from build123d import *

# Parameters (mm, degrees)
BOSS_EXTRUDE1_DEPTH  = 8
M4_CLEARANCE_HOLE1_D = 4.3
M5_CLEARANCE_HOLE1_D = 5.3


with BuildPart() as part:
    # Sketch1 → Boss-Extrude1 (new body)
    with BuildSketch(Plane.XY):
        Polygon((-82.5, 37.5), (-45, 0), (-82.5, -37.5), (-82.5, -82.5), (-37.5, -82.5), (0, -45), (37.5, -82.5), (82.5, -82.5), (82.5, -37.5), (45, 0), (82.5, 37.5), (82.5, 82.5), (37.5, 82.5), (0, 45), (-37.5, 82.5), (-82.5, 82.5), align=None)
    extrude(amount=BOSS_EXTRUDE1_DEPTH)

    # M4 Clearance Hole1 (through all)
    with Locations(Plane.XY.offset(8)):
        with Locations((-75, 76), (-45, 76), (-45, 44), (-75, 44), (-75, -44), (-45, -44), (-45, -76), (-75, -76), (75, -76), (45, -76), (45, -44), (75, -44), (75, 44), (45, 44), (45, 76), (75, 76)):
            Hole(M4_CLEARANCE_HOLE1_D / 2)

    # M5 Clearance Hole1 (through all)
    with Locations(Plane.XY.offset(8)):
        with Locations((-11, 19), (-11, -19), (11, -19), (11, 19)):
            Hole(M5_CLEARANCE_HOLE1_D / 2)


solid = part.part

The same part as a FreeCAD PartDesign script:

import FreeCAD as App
import Part
import Sketcher
from FreeCAD import Vector
Q = App.Units.Quantity


def add_polygon(sketch, points):
    """Adds a closed chain of lines whose ends are joined by coincident constraints."""
    first, n = sketch.GeometryCount, len(points)
    for a, b in zip(points, points[1:] + points[:1]):
        sketch.addGeometry(Part.LineSegment(App.Vector(*a, 0), App.Vector(*b, 0)), False)
    for i in range(n):
        sketch.addConstraint(Sketcher.Constraint("Coincident", first + i, 2, first + (i + 1) % n, 1))

doc = App.newDocument("Part")
params = doc.addObject("Spreadsheet::Sheet", "Params")
for row, (alias, value) in enumerate([
    ("sketch1_width", "45 mm"),
    ("pad1_length", "8 mm"),
    ("sketch2_diameter", "4.3 mm"),
    ("hole_diameter", "4.3 mm"),
    ("sketch3_diameter", "5.3 mm"),
    ("hole2_diameter", "5.3 mm"),
], start=1):
    params.set(f"A{row}", alias)
    params.set(f"B{row}", "=" + value)
    params.setAlias(f"B{row}", alias)

body = doc.addObject("PartDesign::Body", "Body")

# Sketch on XY plane
sketch1 = body.newObject("Sketcher::SketchObject", "Sketch")
sketch1.AttachmentSupport = (doc.getObject("XY_Plane"), [""])
sketch1.MapMode = "FlatFace"
add_polygon(sketch1, [(-82.5, 37.5), (-45, 0), (-82.5, -37.5), (-82.5, -82.5), (-37.5, -82.5), (0, -45), (37.5, -82.5), (82.5, -82.5), (82.5, -37.5), (45, 0), (82.5, 37.5), (82.5, 82.5), (37.5, 82.5), (0, 45), (-37.5, 82.5), (-82.5, 82.5)])  # lines 0-15
sketch1.addConstraint(Sketcher.Constraint("Vertical", 2))
sketch1.addConstraint(Sketcher.Constraint("Horizontal", 3))
sketch1.addConstraint(Sketcher.Constraint("Horizontal", 6))
sketch1.addConstraint(Sketcher.Constraint("Vertical", 7))
sketch1.addConstraint(Sketcher.Constraint("Vertical", 10))
sketch1.addConstraint(Sketcher.Constraint("Horizontal", 11))
sketch1.addConstraint(Sketcher.Constraint("Horizontal", 14))
sketch1.addConstraint(Sketcher.Constraint("Vertical", 15))
sketch1.addConstraint(Sketcher.Constraint("Symmetric", 0, 2, 8, 2, -1, 1))
sketch1.addConstraint(Sketcher.Constraint("Symmetric", 1, 2, 9, 2, -1, 1))
sketch1.addConstraint(Sketcher.Constraint("Symmetric", 3, 2, 11, 2, -1, 1))
sketch1.addConstraint(Sketcher.Constraint("Symmetric", 4, 2, 12, 2, -1, 1))
sketch1.addConstraint(Sketcher.Constraint("Symmetric", 5, 2, 13, 2, -1, 1))
sketch1.addConstraint(Sketcher.Constraint("Symmetric", 7, 2, 15, 2, -1, 1))
sketch1.addConstraint(Sketcher.Constraint("Symmetric", 3, 2, 5, 2, -2))
sketch1.addConstraint(Sketcher.Constraint("Symmetric", 1, 2, 7, 2, -2))
sketch1.addConstraint(Sketcher.Constraint("PointOnObject", 0, 2, -1))
sketch1.addConstraint(Sketcher.Constraint("PointOnObject", 4, 2, -2))
sketch1.addConstraint(Sketcher.Constraint("Perpendicular", 0, 1))
sketch1.addConstraint(Sketcher.Constraint("Parallel", 1, 4))
sketch1.addConstraint(Sketcher.Constraint("Equal", 14, 2))
sketch1.addConstraint(Sketcher.Constraint("Equal", 1, 4))
sketch1.addConstraint(Sketcher.Constraint("DistanceX", 3, 1, 3, 2, Q("45 mm")))
sketch1.addConstraint(Sketcher.Constraint("DistanceX", 3, 2, 5, 2, Q("75 mm")))
sketch1.setExpression("Constraints[38]", "Params.sketch1_width")
pad1 = body.newObject("PartDesign::Pad", "Pad")
pad1.Profile = sketch1
pad1.setExpression("Length", "Params.pad1_length")

# Sketch on XY plane
sketch2 = body.newObject("Sketcher::SketchObject", "Sketch001")
sketch2.AttachmentSupport = (doc.getObject("XY_Plane"), [""])
sketch2.MapMode = "FlatFace"
sketch2.AttachmentOffset = App.Placement(Vector(0, 0, 8), App.Rotation())
sketch2.addGeometry(Part.Circle(Vector(-75, 76, 0), Vector(0, 0, 1), 2.15), False)
sketch2.addGeometry(Part.Circle(Vector(-45, 76, 0), Vector(0, 0, 1), 2.15), False)
sketch2.addGeometry(Part.Circle(Vector(-45, 44, 0), Vector(0, 0, 1), 2.15), False)
sketch2.addGeometry(Part.Circle(Vector(-75, 44, 0), Vector(0, 0, 1), 2.15), False)
sketch2.addGeometry(Part.Circle(Vector(-75, -44, 0), Vector(0, 0, 1), 2.15), False)
sketch2.addGeometry(Part.Circle(Vector(-45, -44, 0), Vector(0, 0, 1), 2.15), False)
sketch2.addGeometry(Part.Circle(Vector(-45, -76, 0), Vector(0, 0, 1), 2.15), False)
sketch2.addGeometry(Part.Circle(Vector(-75, -76, 0), Vector(0, 0, 1), 2.15), False)
sketch2.addGeometry(Part.Circle(Vector(75, -76, 0), Vector(0, 0, 1), 2.15), False)
sketch2.addGeometry(Part.Circle(Vector(45, -76, 0), Vector(0, 0, 1), 2.15), False)
sketch2.addGeometry(Part.Circle(Vector(45, -44, 0), Vector(0, 0, 1), 2.15), False)
sketch2.addGeometry(Part.Circle(Vector(75, -44, 0), Vector(0, 0, 1), 2.15), False)
sketch2.addGeometry(Part.Circle(Vector(75, 44, 0), Vector(0, 0, 1), 2.15), False)
sketch2.addGeometry(Part.Circle(Vector(45, 44, 0), Vector(0, 0, 1), 2.15), False)
sketch2.addGeometry(Part.Circle(Vector(45, 76, 0), Vector(0, 0, 1), 2.15), False)
sketch2.addGeometry(Part.Circle(Vector(75, 76, 0), Vector(0, 0, 1), 2.15), False)
sketch2.addConstraint(Sketcher.Constraint("Equal", 0, 1))
sketch2.addConstraint(Sketcher.Constraint("Equal", 1, 2))
sketch2.addConstraint(Sketcher.Constraint("Equal", 2, 3))
sketch2.addConstraint(Sketcher.Constraint("Equal", 3, 4))
sketch2.addConstraint(Sketcher.Constraint("Equal", 4, 5))
sketch2.addConstraint(Sketcher.Constraint("Equal", 5, 6))
sketch2.addConstraint(Sketcher.Constraint("Equal", 6, 7))
sketch2.addConstraint(Sketcher.Constraint("Equal", 7, 8))
sketch2.addConstraint(Sketcher.Constraint("Equal", 8, 9))
sketch2.addConstraint(Sketcher.Constraint("Equal", 9, 10))
sketch2.addConstraint(Sketcher.Constraint("Equal", 10, 11))
sketch2.addConstraint(Sketcher.Constraint("Equal", 11, 12))
sketch2.addConstraint(Sketcher.Constraint("Equal", 12, 13))
sketch2.addConstraint(Sketcher.Constraint("Equal", 13, 14))
sketch2.addConstraint(Sketcher.Constraint("Equal", 14, 15))
sketch2.addConstraint(Sketcher.Constraint("Symmetric", 0, 3, 8, 3, -1, 1))
sketch2.addConstraint(Sketcher.Constraint("Symmetric", 1, 3, 9, 3, -1, 1))
sketch2.addConstraint(Sketcher.Constraint("Symmetric", 2, 3, 10, 3, -1, 1))
sketch2.addConstraint(Sketcher.Constraint("Symmetric", 3, 3, 11, 3, -1, 1))
sketch2.addConstraint(Sketcher.Constraint("Symmetric", 4, 3, 12, 3, -1, 1))
sketch2.addConstraint(Sketcher.Constraint("Symmetric", 5, 3, 13, 3, -1, 1))
sketch2.addConstraint(Sketcher.Constraint("Symmetric", 6, 3, 14, 3, -1, 1))
sketch2.addConstraint(Sketcher.Constraint("Symmetric", 7, 3, 15, 3, -1, 1))
sketch2.addConstraint(Sketcher.Constraint("Symmetric", 7, 3, 8, 3, -2))
sketch2.addConstraint(Sketcher.Constraint("Symmetric", 6, 3, 9, 3, -2))
sketch2.addConstraint(Sketcher.Constraint("Symmetric", 5, 3, 10, 3, -2))
sketch2.addConstraint(Sketcher.Constraint("Symmetric", 4, 3, 11, 3, -2))
sketch2.addConstraint(Sketcher.Constraint("Horizontal", 0, 3, 1, 3))
sketch2.addConstraint(Sketcher.Constraint("Horizontal", 2, 3, 3, 3))
sketch2.addConstraint(Sketcher.Constraint("Vertical", 1, 3, 2, 3))
sketch2.addConstraint(Sketcher.Constraint("Vertical", 0, 3, 3, 3))
sketch2.addConstraint(Sketcher.Constraint("Diameter", 0, Q("4.3 mm")))
sketch2.addConstraint(Sketcher.Constraint("DistanceX", 0, 3, -1, 1, Q("75 mm")))
sketch2.addConstraint(Sketcher.Constraint("DistanceY", -1, 1, 0, 3, Q("76 mm")))
sketch2.addConstraint(Sketcher.Constraint("DistanceX", 1, 3, -1, 1, Q("45 mm")))
sketch2.addConstraint(Sketcher.Constraint("DistanceY", -1, 1, 2, 3, Q("44 mm")))
sketch2.setExpression("Constraints[31]", "Params.sketch2_diameter")
doc.recompute()
hole = body.newObject("PartDesign::Hole", "Hole")
hole.Profile = sketch2
hole.ThreadType = "None"
hole.setExpression("Diameter", "Params.hole_diameter")
hole.DepthType = "ThroughAll"

# Sketch on XY plane
sketch3 = body.newObject("Sketcher::SketchObject", "Sketch002")
sketch3.AttachmentSupport = (doc.getObject("XY_Plane"), [""])
sketch3.MapMode = "FlatFace"
sketch3.AttachmentOffset = App.Placement(Vector(0, 0, 8), App.Rotation())
sketch3.addGeometry(Part.Circle(Vector(-11, 19, 0), Vector(0, 0, 1), 2.65), False)
sketch3.addGeometry(Part.Circle(Vector(-11, -19, 0), Vector(0, 0, 1), 2.65), False)
sketch3.addGeometry(Part.Circle(Vector(11, -19, 0), Vector(0, 0, 1), 2.65), False)
sketch3.addGeometry(Part.Circle(Vector(11, 19, 0), Vector(0, 0, 1), 2.65), False)
sketch3.addConstraint(Sketcher.Constraint("Equal", 0, 1))
sketch3.addConstraint(Sketcher.Constraint("Equal", 1, 2))
sketch3.addConstraint(Sketcher.Constraint("Equal", 2, 3))
sketch3.addConstraint(Sketcher.Constraint("Symmetric", 0, 3, 2, 3, -1, 1))
sketch3.addConstraint(Sketcher.Constraint("Symmetric", 1, 3, 3, 3, -1, 1))
sketch3.addConstraint(Sketcher.Constraint("Symmetric", 1, 3, 2, 3, -2))
sketch3.addConstraint(Sketcher.Constraint("Diameter", 0, Q("5.3 mm")))
sketch3.addConstraint(Sketcher.Constraint("DistanceX", 0, 3, -1, 1, Q("11 mm")))
sketch3.addConstraint(Sketcher.Constraint("DistanceY", -1, 1, 0, 3, Q("19 mm")))
sketch3.setExpression("Constraints[6]", "Params.sketch3_diameter")
doc.recompute()
hole2 = body.newObject("PartDesign::Hole", "Hole001")
hole2.Profile = sketch3
hole2.ThreadType = "None"
hole2.setExpression("Diameter", "Params.hole2_diameter")
hole2.DepthType = "ThroughAll"

doc.recompute()
